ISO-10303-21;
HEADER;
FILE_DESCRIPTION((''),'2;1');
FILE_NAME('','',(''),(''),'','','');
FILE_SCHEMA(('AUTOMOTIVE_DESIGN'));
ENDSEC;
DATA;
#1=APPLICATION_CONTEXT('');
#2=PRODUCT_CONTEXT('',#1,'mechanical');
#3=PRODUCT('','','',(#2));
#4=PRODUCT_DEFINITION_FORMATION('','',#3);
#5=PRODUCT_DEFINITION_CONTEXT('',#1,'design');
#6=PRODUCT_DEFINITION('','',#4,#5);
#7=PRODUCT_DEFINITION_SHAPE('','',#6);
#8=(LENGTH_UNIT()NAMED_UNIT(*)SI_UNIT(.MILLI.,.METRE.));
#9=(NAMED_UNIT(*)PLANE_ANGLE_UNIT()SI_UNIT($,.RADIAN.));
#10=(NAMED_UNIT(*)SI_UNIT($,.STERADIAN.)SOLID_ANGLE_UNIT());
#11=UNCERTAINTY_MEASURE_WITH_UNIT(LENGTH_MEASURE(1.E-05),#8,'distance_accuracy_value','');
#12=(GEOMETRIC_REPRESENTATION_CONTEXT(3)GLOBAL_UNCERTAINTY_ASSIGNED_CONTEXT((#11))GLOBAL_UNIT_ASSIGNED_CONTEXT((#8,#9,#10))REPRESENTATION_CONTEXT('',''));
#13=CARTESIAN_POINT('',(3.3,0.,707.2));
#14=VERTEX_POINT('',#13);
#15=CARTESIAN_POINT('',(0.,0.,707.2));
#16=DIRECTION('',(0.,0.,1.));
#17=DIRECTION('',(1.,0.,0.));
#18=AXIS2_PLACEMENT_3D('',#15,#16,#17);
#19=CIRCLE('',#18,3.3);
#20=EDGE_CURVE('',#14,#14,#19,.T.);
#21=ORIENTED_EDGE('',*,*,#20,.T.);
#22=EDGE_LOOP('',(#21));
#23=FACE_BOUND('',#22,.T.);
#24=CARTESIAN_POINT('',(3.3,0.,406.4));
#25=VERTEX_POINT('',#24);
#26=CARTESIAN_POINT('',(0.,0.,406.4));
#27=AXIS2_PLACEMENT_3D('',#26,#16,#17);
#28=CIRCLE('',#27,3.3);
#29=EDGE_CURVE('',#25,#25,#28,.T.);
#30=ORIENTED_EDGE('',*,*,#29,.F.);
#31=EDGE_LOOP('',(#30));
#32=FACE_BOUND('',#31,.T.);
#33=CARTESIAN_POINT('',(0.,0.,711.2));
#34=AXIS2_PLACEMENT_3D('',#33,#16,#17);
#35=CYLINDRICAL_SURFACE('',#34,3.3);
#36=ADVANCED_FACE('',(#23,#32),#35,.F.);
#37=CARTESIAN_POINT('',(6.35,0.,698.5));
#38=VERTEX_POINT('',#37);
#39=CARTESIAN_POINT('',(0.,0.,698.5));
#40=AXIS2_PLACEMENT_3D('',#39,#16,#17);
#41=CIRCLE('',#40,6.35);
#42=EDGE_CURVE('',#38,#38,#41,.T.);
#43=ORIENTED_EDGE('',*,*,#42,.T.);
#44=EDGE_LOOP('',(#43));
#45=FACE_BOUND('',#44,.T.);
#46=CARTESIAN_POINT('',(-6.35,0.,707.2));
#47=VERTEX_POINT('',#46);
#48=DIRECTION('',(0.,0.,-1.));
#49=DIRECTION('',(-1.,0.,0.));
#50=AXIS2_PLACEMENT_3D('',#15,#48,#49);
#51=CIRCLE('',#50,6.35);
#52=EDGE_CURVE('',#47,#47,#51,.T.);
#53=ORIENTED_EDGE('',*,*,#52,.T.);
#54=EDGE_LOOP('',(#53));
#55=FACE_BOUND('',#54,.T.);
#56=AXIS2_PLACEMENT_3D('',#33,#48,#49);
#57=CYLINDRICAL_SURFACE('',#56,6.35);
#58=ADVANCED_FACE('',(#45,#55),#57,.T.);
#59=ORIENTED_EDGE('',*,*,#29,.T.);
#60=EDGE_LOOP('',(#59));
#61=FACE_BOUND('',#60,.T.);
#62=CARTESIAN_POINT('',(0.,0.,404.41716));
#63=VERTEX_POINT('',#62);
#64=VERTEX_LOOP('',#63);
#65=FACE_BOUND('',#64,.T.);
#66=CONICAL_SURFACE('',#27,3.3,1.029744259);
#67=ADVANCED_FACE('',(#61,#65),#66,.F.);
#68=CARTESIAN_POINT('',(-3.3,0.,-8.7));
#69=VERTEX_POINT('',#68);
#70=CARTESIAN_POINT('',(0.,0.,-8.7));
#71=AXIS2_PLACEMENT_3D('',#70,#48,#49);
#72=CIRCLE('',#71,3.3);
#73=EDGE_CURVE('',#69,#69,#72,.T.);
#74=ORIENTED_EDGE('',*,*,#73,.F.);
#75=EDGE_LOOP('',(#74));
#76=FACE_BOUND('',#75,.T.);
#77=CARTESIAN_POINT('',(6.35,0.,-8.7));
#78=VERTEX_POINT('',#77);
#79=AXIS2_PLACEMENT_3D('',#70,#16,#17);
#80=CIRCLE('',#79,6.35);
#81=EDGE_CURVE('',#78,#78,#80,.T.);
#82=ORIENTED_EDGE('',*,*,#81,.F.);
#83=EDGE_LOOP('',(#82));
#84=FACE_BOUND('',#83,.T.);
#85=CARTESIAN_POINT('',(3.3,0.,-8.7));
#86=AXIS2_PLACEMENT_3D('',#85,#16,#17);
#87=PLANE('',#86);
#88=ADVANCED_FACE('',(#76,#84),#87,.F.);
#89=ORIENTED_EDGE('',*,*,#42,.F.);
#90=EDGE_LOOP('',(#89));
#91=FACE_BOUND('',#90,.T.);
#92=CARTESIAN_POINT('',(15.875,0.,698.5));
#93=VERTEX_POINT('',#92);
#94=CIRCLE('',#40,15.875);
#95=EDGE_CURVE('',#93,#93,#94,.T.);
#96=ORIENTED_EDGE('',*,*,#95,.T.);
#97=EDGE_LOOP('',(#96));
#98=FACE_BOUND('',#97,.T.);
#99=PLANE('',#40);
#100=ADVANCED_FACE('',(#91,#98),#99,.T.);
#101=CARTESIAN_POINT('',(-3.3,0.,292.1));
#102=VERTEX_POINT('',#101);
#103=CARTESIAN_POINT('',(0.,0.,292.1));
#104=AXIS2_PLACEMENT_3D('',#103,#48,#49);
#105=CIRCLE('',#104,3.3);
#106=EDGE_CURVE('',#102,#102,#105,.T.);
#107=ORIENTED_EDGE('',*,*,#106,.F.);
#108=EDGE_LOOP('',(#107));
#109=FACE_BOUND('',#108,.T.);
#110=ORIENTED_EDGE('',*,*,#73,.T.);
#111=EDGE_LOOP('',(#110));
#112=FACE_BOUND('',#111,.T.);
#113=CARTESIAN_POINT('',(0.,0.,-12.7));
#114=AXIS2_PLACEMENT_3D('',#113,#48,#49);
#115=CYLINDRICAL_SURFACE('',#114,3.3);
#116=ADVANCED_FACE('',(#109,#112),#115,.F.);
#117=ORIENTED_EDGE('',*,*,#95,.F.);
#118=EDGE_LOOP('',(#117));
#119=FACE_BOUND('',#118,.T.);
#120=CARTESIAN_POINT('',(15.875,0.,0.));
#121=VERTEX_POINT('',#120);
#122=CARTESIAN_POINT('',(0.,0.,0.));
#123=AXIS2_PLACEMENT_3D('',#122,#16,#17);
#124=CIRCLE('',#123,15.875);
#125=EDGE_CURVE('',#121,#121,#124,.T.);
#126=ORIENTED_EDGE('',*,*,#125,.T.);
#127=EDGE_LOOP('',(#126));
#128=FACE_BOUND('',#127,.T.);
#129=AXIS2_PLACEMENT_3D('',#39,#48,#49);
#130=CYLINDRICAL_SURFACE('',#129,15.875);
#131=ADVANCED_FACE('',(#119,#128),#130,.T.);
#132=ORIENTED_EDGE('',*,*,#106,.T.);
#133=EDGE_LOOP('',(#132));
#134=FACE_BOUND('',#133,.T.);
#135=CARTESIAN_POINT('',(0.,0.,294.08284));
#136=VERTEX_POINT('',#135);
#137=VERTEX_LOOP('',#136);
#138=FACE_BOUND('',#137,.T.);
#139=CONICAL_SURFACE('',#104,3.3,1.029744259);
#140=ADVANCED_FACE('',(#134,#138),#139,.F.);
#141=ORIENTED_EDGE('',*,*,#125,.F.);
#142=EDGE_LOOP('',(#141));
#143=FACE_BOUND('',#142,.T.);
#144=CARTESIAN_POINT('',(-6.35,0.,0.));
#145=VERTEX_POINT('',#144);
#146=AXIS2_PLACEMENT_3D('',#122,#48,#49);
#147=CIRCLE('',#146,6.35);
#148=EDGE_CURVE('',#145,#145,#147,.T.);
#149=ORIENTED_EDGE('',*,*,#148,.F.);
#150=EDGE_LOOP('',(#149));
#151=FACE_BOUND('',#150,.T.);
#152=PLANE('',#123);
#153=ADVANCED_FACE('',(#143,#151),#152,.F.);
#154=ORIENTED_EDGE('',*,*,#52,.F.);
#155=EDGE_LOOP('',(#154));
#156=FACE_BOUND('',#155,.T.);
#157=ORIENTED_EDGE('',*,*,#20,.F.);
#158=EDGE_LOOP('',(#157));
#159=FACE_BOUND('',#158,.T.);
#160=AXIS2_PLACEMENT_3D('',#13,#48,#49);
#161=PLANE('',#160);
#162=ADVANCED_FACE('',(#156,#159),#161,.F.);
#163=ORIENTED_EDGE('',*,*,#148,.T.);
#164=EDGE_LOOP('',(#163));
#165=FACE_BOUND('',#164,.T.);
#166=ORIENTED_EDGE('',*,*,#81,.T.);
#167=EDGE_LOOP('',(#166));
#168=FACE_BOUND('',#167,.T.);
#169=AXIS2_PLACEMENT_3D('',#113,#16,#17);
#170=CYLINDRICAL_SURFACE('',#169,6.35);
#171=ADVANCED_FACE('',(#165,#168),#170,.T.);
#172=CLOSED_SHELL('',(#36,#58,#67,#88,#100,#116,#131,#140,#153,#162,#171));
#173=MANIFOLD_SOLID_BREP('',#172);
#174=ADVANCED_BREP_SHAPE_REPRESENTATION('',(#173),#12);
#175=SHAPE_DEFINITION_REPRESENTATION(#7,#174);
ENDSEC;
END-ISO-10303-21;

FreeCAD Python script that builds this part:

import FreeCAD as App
import Part
import Sketcher
from FreeCAD import Vector
Q = App.Units.Quantity

doc = App.newDocument("Part")
body = doc.addObject("PartDesign::Body", "Body")

sketch1 = body.newObject("Sketcher::SketchObject", "Sketch")
sketch1.AttachmentSupport = (doc.getObject("XY_Plane"), [""])
sketch1.MapMode = "FlatFace"
sketch1.addGeometry(Part.Circle(Vector(0, 0, 0), Vector(0, 0, 1), 16), False)
sketch1.addConstraint([
    Sketcher.Constraint("Coincident", 0, 3, -1, 1),
    Sketcher.Constraint("Diameter", 0, Q("1.25 in")),
])
pad1 = body.newObject("PartDesign::Pad", "Pad")
pad1.Profile = sketch1
pad1.Length = Q("27.5 in")

sketch2 = body.newObject("Sketcher::SketchObject", "Sketch001")
sketch2.AttachmentSupport = (doc.getObject("XY_Plane"), [""])
sketch2.MapMode = "FlatFace"
sketch2.AttachmentOffset = App.Placement(Vector(0, 0, 27.5 * 25.4), App.Rotation())
sketch2.addGeometry(Part.Circle(Vector(0, 0, 0), Vector(0, 0, 1), 6), False)
sketch2.addConstraint([
    Sketcher.Constraint("Coincident", 0, 3, -1, 1),
    Sketcher.Constraint("Diameter", 0, Q("0.5 in")),
])
pad2 = body.newObject("PartDesign::Pad", "Pad001")
pad2.Profile = sketch2
pad2.Length = Q("0.5 in")

sketch3 = body.newObject("Sketcher::SketchObject", "Sketch002")
sketch3.AttachmentSupport = (doc.getObject("XY_Plane"), [""])
sketch3.MapMode = "FlatFace"
sketch3.AttachmentOffset = App.Placement(Vector(0, 0, -0.5 * 25.4), App.Rotation())
sketch3.addGeometry(Part.Circle(Vector(0, 0, 0), Vector(0, 0, 1), 6), False)
sketch3.addConstraint([
    Sketcher.Constraint("Coincident", 0, 3, -1, 1),
    Sketcher.Constraint("Diameter", 0, Q("0.5 in")),
])
pad3 = body.newObject("PartDesign::Pad", "Pad002")
pad3.Profile = sketch3
pad3.Length = Q("0.5 in")

sketch4 = body.newObject("Sketcher::SketchObject", "Sketch003")
sketch4.AttachmentSupport = (doc.getObject("XY_Plane"), [""])
sketch4.MapMode = "FlatFace"
sketch4.AttachmentOffset = App.Placement(Vector(0, 0, 28 * 25.4), App.Rotation())
sketch4.addGeometry(Part.Circle(Vector(0, 0, 0), Vector(0, 0, 1), 3.3), False)
sketch4.addConstraint([
    Sketcher.Constraint("Coincident", 0, 3, -1, 1),
    Sketcher.Constraint("Diameter", 0, 6.6),
])
doc.recompute()
hole = body.newObject("PartDesign::Hole", "Hole")
hole.Profile = sketch4
hole.ThreadType = "None"
hole.Diameter = 6.6
hole.DepthType = "Dimension"
hole.Depth = Q("12 in")
hole.DrillPoint = "Angled"
hole.DrillPointAngle = 118
hole.HoleCutType = "Counterbore"
hole.HoleCutDiameter = 14.547
hole.HoleCutDepth = 4

sketch5 = body.newObject("Sketcher::SketchObject", "Sketch004")
sketch5.AttachmentSupport = (doc.getObject("XY_Plane"), [""])
sketch5.MapMode = "FlatFace"
sketch5.AttachmentOffset = App.Placement(Vector(0, 0, -0.5 * 25.4), App.Rotation())
sketch5.addGeometry(Part.Circle(Vector(0, 0, 0), Vector(0, 0, 1), 3.3), False)
sketch5.addConstraint([
    Sketcher.Constraint("Coincident", 0, 3, -1, 1),
    Sketcher.Constraint("Diameter", 0, 6.6),
])
doc.recompute()
hole2 = body.newObject("PartDesign::Hole", "Hole001")
hole2.Profile = sketch5
hole2.ThreadType = "None"
hole2.Diameter = 6.6
hole2.DepthType = "Dimension"
hole2.Depth = Q("12 in")
hole2.DrillPoint = "Angled"
hole2.DrillPointAngle = 118
hole2.HoleCutType = "Counterbore"
hole2.HoleCutDiameter = 14.547
hole2.HoleCutDepth = 4
hole2.Reversed = True

doc.recompute()
